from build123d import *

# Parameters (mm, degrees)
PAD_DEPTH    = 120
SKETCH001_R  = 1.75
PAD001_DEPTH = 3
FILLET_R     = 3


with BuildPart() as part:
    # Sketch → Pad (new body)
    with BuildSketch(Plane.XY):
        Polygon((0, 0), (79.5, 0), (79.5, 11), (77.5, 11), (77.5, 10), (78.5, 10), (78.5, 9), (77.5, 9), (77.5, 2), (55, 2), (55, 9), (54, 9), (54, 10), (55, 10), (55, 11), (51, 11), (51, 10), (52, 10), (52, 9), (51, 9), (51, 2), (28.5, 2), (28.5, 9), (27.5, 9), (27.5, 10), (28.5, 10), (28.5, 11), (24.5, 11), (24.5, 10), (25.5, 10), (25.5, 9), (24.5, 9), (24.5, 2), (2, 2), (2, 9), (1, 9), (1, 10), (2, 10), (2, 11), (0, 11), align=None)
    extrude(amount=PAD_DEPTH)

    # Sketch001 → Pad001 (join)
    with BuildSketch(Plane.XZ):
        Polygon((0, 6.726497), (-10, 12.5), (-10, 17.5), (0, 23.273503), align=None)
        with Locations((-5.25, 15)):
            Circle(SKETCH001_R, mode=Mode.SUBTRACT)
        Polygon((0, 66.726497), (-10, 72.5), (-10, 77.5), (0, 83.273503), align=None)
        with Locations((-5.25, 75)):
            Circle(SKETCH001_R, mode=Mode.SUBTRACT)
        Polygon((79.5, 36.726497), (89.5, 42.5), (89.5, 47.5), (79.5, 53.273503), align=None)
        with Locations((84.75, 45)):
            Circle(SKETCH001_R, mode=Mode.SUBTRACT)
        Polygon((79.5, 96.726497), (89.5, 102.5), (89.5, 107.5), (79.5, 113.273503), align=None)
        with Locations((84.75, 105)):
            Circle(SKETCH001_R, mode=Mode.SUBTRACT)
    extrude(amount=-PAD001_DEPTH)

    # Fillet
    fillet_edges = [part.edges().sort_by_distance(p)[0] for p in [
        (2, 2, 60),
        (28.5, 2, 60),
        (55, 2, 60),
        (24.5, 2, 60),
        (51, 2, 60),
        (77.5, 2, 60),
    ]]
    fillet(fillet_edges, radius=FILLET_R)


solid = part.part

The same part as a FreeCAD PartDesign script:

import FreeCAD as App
import Part
import Sketcher
Q = App.Units.Quantity


def edges_at(feature, points):
    """Names of the edges that pass closest to the given points."""
    edges = feature.Shape.Edges
    near = lambda p: min(range(len(edges)), key=lambda i: edges[i].distToShape(Part.Vertex(*p))[0])
    return sorted({f"Edge{near(p) + 1}" for p in points})


def add_polygon(sketch, points):
    """Adds a closed chain of lines whose ends are joined by coincident constraints."""
    first, n = sketch.GeometryCount, len(points)
    for a, b in zip(points, points[1:] + points[:1]):
        sketch.addGeometry(Part.LineSegment(App.Vector(*a, 0), App.Vector(*b, 0)), False)
    for i in range(n):
        sketch.addConstraint(Sketcher.Constraint("Coincident", first + i, 2, first + (i + 1) % n, 1))

doc = App.newDocument("Part")
body = doc.addObject("PartDesign::Body", "Body")

# Sketch on XY plane
sketch1 = body.newObject("Sketcher::SketchObject", "Sketch")
sketch1.AttachmentSupport = (doc.getObject("XY_Plane"), [""])
sketch1.MapMode = "FlatFace"
add_polygon(sketch1, [(0, 0), (79.5, 0), (79.5, 11), (77.5, 11), (77.5, 10), (78.5, 10), (78.5, 9), (77.5, 9), (77.5, 2), (55, 2), (55, 9), (54, 9), (54, 10), (55, 10), (55, 11), (51, 11), (51, 10), (52, 10), (52, 9), (51, 9), (51, 2), (28.5, 2), (28.5, 9), (27.5, 9), (27.5, 10), (28.5, 10), (28.5, 11), (24.5, 11), (24.5, 10), (25.5, 10), (25.5, 9), (24.5, 9), (24.5, 2), (2, 2), (2, 9), (1, 9), (1, 10), (2, 10), (2, 11), (0, 11)])  # lines 0-39
sketch1.addConstraint(Sketcher.Constraint("Horizontal", 0))
sketch1.addConstraint(Sketcher.Constraint("Vertical", 1))
sketch1.addConstraint(Sketcher.Constraint("Horizontal", 2))
sketch1.addConstraint(Sketcher.Constraint("Vertical", 3))
sketch1.addConstraint(Sketcher.Constraint("Horizontal", 4))
sketch1.addConstraint(Sketcher.Constraint("Vertical", 5))
sketch1.addConstraint(Sketcher.Constraint("Horizontal", 6))
sketch1.addConstraint(Sketcher.Constraint("Vertical", 7))
sketch1.addConstraint(Sketcher.Constraint("Horizontal", 8))
sketch1.addConstraint(Sketcher.Constraint("Vertical", 9))
sketch1.addConstraint(Sketcher.Constraint("Horizontal", 10))
sketch1.addConstraint(Sketcher.Constraint("Vertical", 11))
sketch1.addConstraint(Sketcher.Constraint("Horizontal", 12))
sketch1.addConstraint(Sketcher.Constraint("Vertical", 13))
sketch1.addConstraint(Sketcher.Constraint("Horizontal", 14))
sketch1.addConstraint(Sketcher.Constraint("Vertical", 15))
sketch1.addConstraint(Sketcher.Constraint("Horizontal", 16))
sketch1.addConstraint(Sketcher.Constraint("Vertical", 17))
sketch1.addConstraint(Sketcher.Constraint("Horizontal", 18))
sketch1.addConstraint(Sketcher.Constraint("Vertical", 19))
sketch1.addConstraint(Sketcher.Constraint("Horizontal", 20))
sketch1.addConstraint(Sketcher.Constraint("Vertical", 21))
sketch1.addConstraint(Sketcher.Constraint("Horizontal", 22))
sketch1.addConstraint(Sketcher.Constraint("Vertical", 23))
sketch1.addConstraint(Sketcher.Constraint("Horizontal", 24))
sketch1.addConstraint(Sketcher.Constraint("Vertical", 25))
sketch1.addConstraint(Sketcher.Constraint("Horizontal", 26))
sketch1.addConstraint(Sketcher.Constraint("Vertical", 27))
sketch1.addConstraint(Sketcher.Constraint("Horizontal", 28))
sketch1.addConstraint(Sketcher.Constraint("Vertical", 29))
sketch1.addConstraint(Sketcher.Constraint("Horizontal", 30))
sketch1.addConstraint(Sketcher.Constraint("Vertical", 31))
sketch1.addConstraint(Sketcher.Constraint("Horizontal", 32))
sketch1.addConstraint(Sketcher.Constraint("Vertical", 33))
sketch1.addConstraint(Sketcher.Constraint("Horizontal", 34))
sketch1.addConstraint(Sketcher.Constraint("Vertical", 35))
sketch1.addConstraint(Sketcher.Constraint("Horizontal", 36))
sketch1.addConstraint(Sketcher.Constraint("Vertical", 37))
sketch1.addConstraint(Sketcher.Constraint("Horizontal", 38))
sketch1.addConstraint(Sketcher.Constraint("Vertical", 39))
sketch1.addConstraint(Sketcher.Constraint("Coincident", 39, 2, -1, 1))
sketch1.addConstraint(Sketcher.Constraint("Horizontal", 6, 2, 9, 2))
sketch1.addConstraint(Sketcher.Constraint("Horizontal", 4, 2, 11, 2))
sketch1.addConstraint(Sketcher.Constraint("Horizontal", 2, 2, 13, 2))
sketch1.addConstraint(Sketcher.Constraint("Horizontal", 12, 2, 15, 2))
sketch1.addConstraint(Sketcher.Constraint("Horizontal", 10, 2, 17, 2))
sketch1.addConstraint(Sketcher.Constraint("Horizontal", 8, 2, 19, 2))
sketch1.addConstraint(Sketcher.Constraint("Horizontal", 18, 2, 21, 2))
sketch1.addConstraint(Sketcher.Constraint("Horizontal", 16, 2, 23, 2))
sketch1.addConstraint(Sketcher.Constraint("Horizontal", 14, 2, 25, 2))
sketch1.addConstraint(Sketcher.Constraint("Horizontal", 24, 2, 27, 2))
sketch1.addConstraint(Sketcher.Constraint("Horizontal", 22, 2, 29, 2))
sketch1.addConstraint(Sketcher.Constraint("Horizontal", 20, 2, 31, 2))
sketch1.addConstraint(Sketcher.Constraint("Horizontal", 30, 2, 33, 2))
sketch1.addConstraint(Sketcher.Constraint("Horizontal", 28, 2, 35, 2))
sketch1.addConstraint(Sketcher.Constraint("Horizontal", 26, 2, 37, 2))
sketch1.addConstraint(Sketcher.Constraint("Vertical", 3, 2, 6, 2))
sketch1.addConstraint(Sketcher.Constraint("Vertical", 9, 2, 12, 2))
sketch1.addConstraint(Sketcher.Constraint("Vertical", 15, 2, 18, 2))
sketch1.addConstraint(Sketcher.Constraint("Vertical", 21, 2, 24, 2))
sketch1.addConstraint(Sketcher.Constraint("Vertical", 27, 2, 30, 2))
sketch1.addConstraint(Sketcher.Constraint("Vertical", 33, 2, 36, 2))
sketch1.addConstraint(Sketcher.Constraint("Equal", 6, 10))
sketch1.addConstraint(Sketcher.Constraint("Equal", 12, 16))
sketch1.addConstraint(Sketcher.Constraint("Equal", 8, 20))
sketch1.addConstraint(Sketcher.Constraint("Equal", 18, 22))
sketch1.addConstraint(Sketcher.Constraint("Equal", 14, 26))
sketch1.addConstraint(Sketcher.Constraint("Equal", 24, 28))
sketch1.addConstraint(Sketcher.Constraint("Equal", 20, 32))
sketch1.addConstraint(Sketcher.Constraint("Equal", 30, 34))
sketch1.addConstraint(Sketcher.Constraint("Equal", 2, 38))
sketch1.addConstraint(Sketcher.Constraint("Equal", 36, 3))
sketch1.addConstraint(Sketcher.Constraint("Equal", 3, 5))
sketch1.addConstraint(Sketcher.Constraint("DistanceX", 2, 2, 2, 1, Q("2 mm")))
sketch1.addConstraint(Sketcher.Constraint("DistanceX", 4, 1, 4, 2, Q("1 mm")))
sketch1.addConstraint(Sketcher.Constraint("DistanceX", 14, 2, 14, 1, Q("4 mm")))
sketch1.addConstraint(Sketcher.Constraint("DistanceY", 1, 1, 1, 2, Q("11 mm")))
sketch1.addConstraint(Sketcher.Constraint("DistanceY", 7, 2, 7, 1, Q("7 mm")))
sketch1.addConstraint(Sketcher.Constraint("DistanceX", 0, 1, 0, 2, Q("79.5 mm")))
pad1 = body.newObject("PartDesign::Pad", "Pad")
pad1.Profile = sketch1
pad1.Length = 120

# Sketch on XZ plane
sketch2 = body.newObject("Sketcher::SketchObject", "Sketch001")
sketch2.AttachmentSupport = (doc.getObject("XZ_Plane"), [""])
sketch2.MapMode = "FlatFace"
add_polygon(sketch2, [(-10, 12.5), (0, 6.7), (0, 23.3), (-10, 17.5)])  # lines 0-3
sketch2.addGeometry(Part.Circle(App.Vector(-5.2, 15, 0), App.Vector(0, 0, 1), 1.8), False)  # 4
add_polygon(sketch2, [(-10, 72.5), (0, 66.7), (0, 83.3), (-10, 77.5)])  # lines 5-8
sketch2.addGeometry(Part.Circle(App.Vector(-5.2, 75, 0), App.Vector(0, 0, 1), 1.8), False)  # 9
add_polygon(sketch2, [(79.5, 36.7), (89.5, 42.5), (89.5, 47.5), (79.5, 53.3)])  # lines 10-13
sketch2.addGeometry(Part.Circle(App.Vector(84.8, 45, 0), App.Vector(0, 0, 1), 1.8), False)  # 14
add_polygon(sketch2, [(79.5, 96.7), (89.5, 102.5), (89.5, 107.5), (79.5, 113.3)])  # lines 15-18
sketch2.addGeometry(Part.Circle(App.Vector(84.8, 105, 0), App.Vector(0, 0, 1), 1.8), False)  # 19
sketch2.addConstraint(Sketcher.Constraint("Vertical", 1))
sketch2.addConstraint(Sketcher.Constraint("Vertical", 3))
sketch2.addConstraint(Sketcher.Constraint("Vertical", 6))
sketch2.addConstraint(Sketcher.Constraint("Vertical", 8))
sketch2.addConstraint(Sketcher.Constraint("Vertical", 11))
sketch2.addConstraint(Sketcher.Constraint("Vertical", 13))
sketch2.addConstraint(Sketcher.Constraint("Vertical", 16))
sketch2.addConstraint(Sketcher.Constraint("Vertical", 18))
sketch2.addConstraint(Sketcher.Constraint("Equal", 4, 9))
sketch2.addConstraint(Sketcher.Constraint("Equal", 9, 14))
sketch2.addConstraint(Sketcher.Constraint("Equal", 14, 19))
sketch2.addConstraint(Sketcher.Constraint("PointOnObject", 0, 2, -2))
sketch2.addConstraint(Sketcher.Constraint("PointOnObject", 5, 2, -2))
sketch2.addConstraint(Sketcher.Constraint("Parallel", 0, 5))
sketch2.addConstraint(Sketcher.Constraint("Parallel", 2, 7))
sketch2.addConstraint(Sketcher.Constraint("Parallel", 7, 10))
sketch2.addConstraint(Sketcher.Constraint("Parallel", 5, 12))
sketch2.addConstraint(Sketcher.Constraint("Parallel", 10, 15))
sketch2.addConstraint(Sketcher.Constraint("Parallel", 12, 17))
sketch2.addConstraint(Sketcher.Constraint("Vertical", 4, 3, 9, 3))
sketch2.addConstraint(Sketcher.Constraint("Vertical", 14, 3, 19, 3))
sketch2.addConstraint(Sketcher.Constraint("Vertical", 3, 2, 7, 2))
sketch2.addConstraint(Sketcher.Constraint("Vertical", 11, 2, 15, 2))
sketch2.addConstraint(Sketcher.Constraint("Vertical", 13, 2, 17, 2))
sketch2.addConstraint(Sketcher.Constraint("Equal", 1, 6))
sketch2.addConstraint(Sketcher.Constraint("Equal", 8, 11))
sketch2.addConstraint(Sketcher.Constraint("Equal", 6, 13))
sketch2.addConstraint(Sketcher.Constraint("Equal", 11, 16))
sketch2.addConstraint(Sketcher.Constraint("Equal", 0, 2))
sketch2.addConstraint(Sketcher.Constraint("Diameter", 4, Q("3.5 mm")))
sketch2.addConstraint(Sketcher.Constraint("DistanceY", 3, 2, 3, 1, Q("5 mm")))
sketch2.addConstraint(Sketcher.Constraint("Angle", 0, Q("-30.000001 deg")))
sketch2.addConstraint(Sketcher.Constraint("DistanceY", -1, 1, 4, 3, Q("15 mm")))
sketch2.addConstraint(Sketcher.Constraint("DistanceY", -1, 1, 9, 3, Q("75 mm")))
sketch2.addConstraint(Sketcher.Constraint("DistanceY", -1, 1, 14, 3, Q("45 mm")))
sketch2.addConstraint(Sketcher.Constraint("DistanceY", -1, 1, 19, 3, Q("105 mm")))
sketch2.addConstraint(Sketcher.Constraint("DistanceX", 2, 2, -1, 1, Q("10 mm")))
sketch2.addConstraint(Sketcher.Constraint("DistanceX", 4, 3, 14, 3, Q("90 mm")))
sketch2.addConstraint(Sketcher.Constraint("DistanceY", 1, 2, 6, 2, Q("60 mm")))
sketch2.addConstraint(Sketcher.Constraint("DistanceY", 11, 2, 15, 2, Q("55 mm")))
sketch2.addConstraint(Sketcher.Constraint("DistanceY", -1, 1, 2, 2, Q("17.5 mm")))
sketch2.addConstraint(Sketcher.Constraint("DistanceX", -1, 1, 10, 2, Q("89.5 mm")))
sketch2.addConstraint(Sketcher.Constraint("DistanceY", -1, 1, 10, 2, Q("42.5 mm")))
sketch2.addConstraint(Sketcher.Constraint("DistanceX", 4, 3, -1, 1, Q("5.25 mm")))
pad2 = body.newObject("PartDesign::Pad", "Pad001")
pad2.Profile = sketch2
pad2.Length = 3
pad2.Reversed = True
doc.recompute()

fillet = body.newObject("PartDesign::Fillet", "Fillet")
fillet.Base = (pad2, edges_at(pad2, [
    (2, 2, 60),
    (28.5, 2, 60),
    (55, 2, 60),
    (24.5, 2, 60),
    (51, 2, 60),
    (77.5, 2, 60),
]))
fillet.Radius = 3

doc.recompute()
